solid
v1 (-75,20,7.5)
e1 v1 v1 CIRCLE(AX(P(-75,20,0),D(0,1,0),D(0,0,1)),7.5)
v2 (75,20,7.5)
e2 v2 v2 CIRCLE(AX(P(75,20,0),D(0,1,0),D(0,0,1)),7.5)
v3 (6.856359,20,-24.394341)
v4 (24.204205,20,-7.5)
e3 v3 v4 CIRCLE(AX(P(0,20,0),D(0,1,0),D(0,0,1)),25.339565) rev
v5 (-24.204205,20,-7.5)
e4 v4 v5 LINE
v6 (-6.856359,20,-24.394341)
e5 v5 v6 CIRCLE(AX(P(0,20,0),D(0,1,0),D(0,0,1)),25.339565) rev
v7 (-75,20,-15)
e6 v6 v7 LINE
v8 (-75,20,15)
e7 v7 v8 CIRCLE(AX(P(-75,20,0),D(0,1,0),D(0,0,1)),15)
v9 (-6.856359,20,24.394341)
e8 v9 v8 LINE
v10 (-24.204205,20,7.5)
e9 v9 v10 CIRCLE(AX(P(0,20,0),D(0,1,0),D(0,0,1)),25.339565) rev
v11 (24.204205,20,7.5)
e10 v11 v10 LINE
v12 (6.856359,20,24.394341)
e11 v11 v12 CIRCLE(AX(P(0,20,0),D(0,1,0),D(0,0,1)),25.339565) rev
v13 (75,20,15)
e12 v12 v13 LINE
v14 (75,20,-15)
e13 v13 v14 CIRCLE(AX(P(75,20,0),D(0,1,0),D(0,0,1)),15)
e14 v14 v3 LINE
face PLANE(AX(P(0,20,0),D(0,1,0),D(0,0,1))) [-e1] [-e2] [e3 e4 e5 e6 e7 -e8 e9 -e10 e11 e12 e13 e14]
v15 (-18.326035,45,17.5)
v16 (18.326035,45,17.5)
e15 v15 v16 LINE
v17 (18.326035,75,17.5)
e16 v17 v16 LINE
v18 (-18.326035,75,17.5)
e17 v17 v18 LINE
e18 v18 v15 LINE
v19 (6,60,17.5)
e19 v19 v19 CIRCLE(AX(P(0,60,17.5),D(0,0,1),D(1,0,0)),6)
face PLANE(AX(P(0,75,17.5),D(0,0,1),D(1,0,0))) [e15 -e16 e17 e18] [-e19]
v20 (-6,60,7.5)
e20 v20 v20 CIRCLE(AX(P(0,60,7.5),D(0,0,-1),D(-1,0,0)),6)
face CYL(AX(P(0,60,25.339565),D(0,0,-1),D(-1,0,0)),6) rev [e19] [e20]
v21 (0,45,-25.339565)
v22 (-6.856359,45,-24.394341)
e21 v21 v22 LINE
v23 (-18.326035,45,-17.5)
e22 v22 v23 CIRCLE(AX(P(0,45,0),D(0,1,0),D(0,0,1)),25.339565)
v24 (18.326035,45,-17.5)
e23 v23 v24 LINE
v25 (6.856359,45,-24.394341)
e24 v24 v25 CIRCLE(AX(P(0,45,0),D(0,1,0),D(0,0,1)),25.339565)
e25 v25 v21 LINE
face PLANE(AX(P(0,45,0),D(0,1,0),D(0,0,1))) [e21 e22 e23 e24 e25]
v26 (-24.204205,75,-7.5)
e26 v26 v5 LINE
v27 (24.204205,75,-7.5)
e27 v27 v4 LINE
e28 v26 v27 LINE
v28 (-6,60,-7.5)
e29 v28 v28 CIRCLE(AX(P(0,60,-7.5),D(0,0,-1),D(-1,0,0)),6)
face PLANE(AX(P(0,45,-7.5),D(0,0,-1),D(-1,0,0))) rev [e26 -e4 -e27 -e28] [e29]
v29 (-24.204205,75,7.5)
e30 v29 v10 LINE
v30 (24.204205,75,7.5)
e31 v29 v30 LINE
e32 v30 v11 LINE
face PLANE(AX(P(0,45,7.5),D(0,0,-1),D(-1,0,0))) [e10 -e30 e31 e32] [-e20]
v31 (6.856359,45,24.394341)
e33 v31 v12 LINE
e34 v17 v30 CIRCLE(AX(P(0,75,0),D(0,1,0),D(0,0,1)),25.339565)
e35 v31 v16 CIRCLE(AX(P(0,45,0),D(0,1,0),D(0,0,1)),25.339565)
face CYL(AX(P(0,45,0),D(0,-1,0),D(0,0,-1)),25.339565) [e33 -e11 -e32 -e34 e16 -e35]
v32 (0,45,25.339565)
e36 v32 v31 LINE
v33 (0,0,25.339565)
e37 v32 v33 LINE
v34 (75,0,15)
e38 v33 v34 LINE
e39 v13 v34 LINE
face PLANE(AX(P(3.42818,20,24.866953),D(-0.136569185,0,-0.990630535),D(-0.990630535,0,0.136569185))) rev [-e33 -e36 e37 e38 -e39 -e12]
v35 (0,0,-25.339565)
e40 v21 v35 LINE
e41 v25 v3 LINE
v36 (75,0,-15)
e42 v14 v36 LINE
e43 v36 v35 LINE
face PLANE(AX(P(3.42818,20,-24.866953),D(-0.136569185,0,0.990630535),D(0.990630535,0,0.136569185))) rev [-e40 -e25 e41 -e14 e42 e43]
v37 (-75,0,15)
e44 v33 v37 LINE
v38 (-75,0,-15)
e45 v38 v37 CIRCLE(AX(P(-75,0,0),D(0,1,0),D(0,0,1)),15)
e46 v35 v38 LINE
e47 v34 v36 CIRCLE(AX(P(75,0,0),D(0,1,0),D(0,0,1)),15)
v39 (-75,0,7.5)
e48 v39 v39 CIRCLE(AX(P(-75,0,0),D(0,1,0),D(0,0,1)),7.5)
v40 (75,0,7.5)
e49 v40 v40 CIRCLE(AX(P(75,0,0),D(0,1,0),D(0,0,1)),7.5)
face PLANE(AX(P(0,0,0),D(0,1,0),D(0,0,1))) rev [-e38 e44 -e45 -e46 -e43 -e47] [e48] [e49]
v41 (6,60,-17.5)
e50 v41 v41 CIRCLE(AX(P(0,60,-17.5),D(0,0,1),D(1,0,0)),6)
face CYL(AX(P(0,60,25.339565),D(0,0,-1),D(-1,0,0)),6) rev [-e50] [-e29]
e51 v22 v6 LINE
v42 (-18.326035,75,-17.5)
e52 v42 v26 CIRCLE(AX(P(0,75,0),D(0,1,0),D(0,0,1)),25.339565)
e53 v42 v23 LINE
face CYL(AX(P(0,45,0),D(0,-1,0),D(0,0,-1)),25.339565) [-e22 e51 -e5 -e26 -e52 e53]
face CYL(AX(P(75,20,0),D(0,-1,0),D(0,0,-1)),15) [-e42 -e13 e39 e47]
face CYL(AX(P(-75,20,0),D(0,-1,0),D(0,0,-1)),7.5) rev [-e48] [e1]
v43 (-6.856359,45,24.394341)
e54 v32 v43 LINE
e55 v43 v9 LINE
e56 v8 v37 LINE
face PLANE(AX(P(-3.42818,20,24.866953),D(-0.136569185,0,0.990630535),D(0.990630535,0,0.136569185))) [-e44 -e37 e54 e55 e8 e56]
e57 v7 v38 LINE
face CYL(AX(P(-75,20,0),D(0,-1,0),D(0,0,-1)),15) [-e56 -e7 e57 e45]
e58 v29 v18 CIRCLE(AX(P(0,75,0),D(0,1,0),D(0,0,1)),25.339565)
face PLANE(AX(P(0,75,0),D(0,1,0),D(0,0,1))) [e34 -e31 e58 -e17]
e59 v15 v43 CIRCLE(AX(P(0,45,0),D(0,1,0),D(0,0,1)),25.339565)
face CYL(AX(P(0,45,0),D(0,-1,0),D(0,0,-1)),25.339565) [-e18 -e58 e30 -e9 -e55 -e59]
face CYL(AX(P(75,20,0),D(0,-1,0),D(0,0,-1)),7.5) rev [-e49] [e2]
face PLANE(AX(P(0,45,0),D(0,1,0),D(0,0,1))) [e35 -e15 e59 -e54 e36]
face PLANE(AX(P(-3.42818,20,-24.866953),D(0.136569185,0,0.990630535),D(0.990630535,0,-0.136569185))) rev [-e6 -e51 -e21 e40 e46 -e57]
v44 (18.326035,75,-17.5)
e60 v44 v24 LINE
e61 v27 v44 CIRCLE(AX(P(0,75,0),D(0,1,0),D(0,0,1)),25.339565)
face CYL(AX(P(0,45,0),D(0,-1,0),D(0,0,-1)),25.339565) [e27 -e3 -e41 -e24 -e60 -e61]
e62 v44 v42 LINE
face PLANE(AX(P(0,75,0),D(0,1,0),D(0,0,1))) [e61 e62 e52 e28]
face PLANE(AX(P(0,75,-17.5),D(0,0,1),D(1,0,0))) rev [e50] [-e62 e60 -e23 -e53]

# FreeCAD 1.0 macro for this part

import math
import FreeCAD as App
import Part
import Sketcher
Q = App.Units.Quantity

doc = App.newDocument("Part")
body = doc.addObject("PartDesign::Body", "Body")

sketch1 = doc.addObject("Sketcher::SketchObject", "Sketch")
body.addObject(sketch1)
sketch1.AttachmentSupport = (doc.XZ_Plane, [""])
sketch1.MapMode = "FlatFace"
sketch1.addGeometry([
    Part.LineSegment(App.Vector(-75, 15, 0), App.Vector(-7, 24, 0)),
    Part.LineSegment(App.Vector(-7, 24, 0), App.Vector(0, 25, 0)),
    Part.LineSegment(App.Vector(0, 25, 0), App.Vector(7, 24, 0)),
    Part.LineSegment(App.Vector(7, 24, 0), App.Vector(75, 15, 0)),
    Part.ArcOfCircle(Part.Circle(App.Vector(75, 0, 0), App.Vector(0, 0, 1), 15), math.radians(-90), math.radians(90)),
    Part.LineSegment(App.Vector(75, -15, 0), App.Vector(7, -24, 0)),
    Part.LineSegment(App.Vector(7, -24, 0), App.Vector(0, -25, 0)),
    Part.LineSegment(App.Vector(0, -25, 0), App.Vector(-7, -24, 0)),
    Part.LineSegment(App.Vector(-7, -24, 0), App.Vector(-75, -15, 0)),
    Part.ArcOfCircle(Part.Circle(App.Vector(-75, 0, 0), App.Vector(0, 0, 1), 15), math.radians(90), math.radians(270)),
    Part.Circle(App.Vector(-75, 0, 0), App.Vector(0, 0, 1), 8),
    Part.Circle(App.Vector(75, 0, 0), App.Vector(0, 0, 1), 8),
], False)
sketch1.addConstraint([
    Sketcher.Constraint("Coincident", 0, 2, 1, 1),
    Sketcher.Constraint("Coincident", 1, 2, 2, 1),
    Sketcher.Constraint("Coincident", 2, 2, 3, 1),
    Sketcher.Constraint("Coincident", 3, 2, 4, 2),
    Sketcher.Constraint("Coincident", 4, 1, 5, 1),
    Sketcher.Constraint("Coincident", 5, 2, 6, 1),
    Sketcher.Constraint("Coincident", 6, 2, 7, 1),
    Sketcher.Constraint("Coincident", 7, 2, 8, 1),
    Sketcher.Constraint("Coincident", 8, 2, 9, 2),
    Sketcher.Constraint("Coincident", 9, 1, 0, 1),
    Sketcher.Constraint("Coincident", 10, 3, 9, 3),
    Sketcher.Constraint("Coincident", 11, 3, 4, 3),
    Sketcher.Constraint("Equal", 4, 9),
    Sketcher.Constraint("Equal", 10, 11),
    Sketcher.Constraint("Symmetric", 4, 3, 9, 3, -1, 1),
    Sketcher.Constraint("Symmetric", 0, 2, 5, 2, -1, 1),
    Sketcher.Constraint("Symmetric", 1, 2, 6, 2, -1, 1),
    Sketcher.Constraint("Symmetric", 2, 2, 7, 2, -1, 1),
    Sketcher.Constraint("Symmetric", 0, 2, 2, 2, -2),
    Sketcher.Constraint("Symmetric", 4, 1, 8, 2, -2),
    Sketcher.Constraint("PointOnObject", 1, 2, -2),
    Sketcher.Constraint("Parallel", 0, 1),
    Sketcher.Constraint("Parallel", 2, 3),
    Sketcher.Constraint("Parallel", 1, 5),
    Sketcher.Constraint("Vertical", 11, 3, 3, 2),
    Sketcher.Constraint("Diameter", 10, Q("15 mm")),
    Sketcher.Constraint("Radius", 4, Q("15 mm")),
    Sketcher.Constraint("DistanceX", -1, 1, 4, 3, Q("75 mm")),
    Sketcher.Constraint("Distance", 0, Q("68.788149 mm")),
    Sketcher.Constraint("DistanceX", 0, 2, -1, 1, Q("6.856359 mm")),
])
pad1 = doc.addObject("PartDesign::Pad", "Pad")
body.addObject(pad1)
pad1.Profile = sketch1
pad1.Length = 20
pad1.Reversed = True

sketch2 = doc.addObject("Sketcher::SketchObject", "Sketch001")
body.addObject(sketch2)
sketch2.AttachmentSupport = (doc.XZ_Plane, [""])
sketch2.MapMode = "FlatFace"
sketch2.addGeometry([
    Part.ArcOfCircle(Part.Circle(App.Vector(0, 0, 0), App.Vector(0, 0, 1), 25), math.radians(-44), math.radians(-17)),
    Part.ArcOfCircle(Part.Circle(App.Vector(0, 0, 0), App.Vector(0, 0, 1), 25), math.radians(-74), math.radians(-44)),
    Part.LineSegment(App.Vector(7, -24, 0), App.Vector(0, -25, 0)),
    Part.LineSegment(App.Vector(0, -25, 0), App.Vector(-7, -24, 0)),
    Part.ArcOfCircle(Part.Circle(App.Vector(0, 0, 0), App.Vector(0, 0, 1), 25), math.radians(-136), math.radians(-106)),
    Part.ArcOfCircle(Part.Circle(App.Vector(0, 0, 0), App.Vector(0, 0, 1), 25), math.radians(-163), math.radians(-136)),
    Part.LineSegment(App.Vector(-24, -8, 0), App.Vector(24, -8, 0)),
    Part.ArcOfCircle(Part.Circle(App.Vector(0, 0, 0), App.Vector(0, 0, 1), 25), math.radians(17), math.radians(44)),
    Part.LineSegment(App.Vector(24, 8, 0), App.Vector(-24, 8, 0)),
    Part.ArcOfCircle(Part.Circle(App.Vector(0, 0, 0), App.Vector(0, 0, 1), 25), math.radians(136), math.radians(163)),
    Part.ArcOfCircle(Part.Circle(App.Vector(0, 0, 0), App.Vector(0, 0, 1), 25), math.radians(106), math.radians(136)),
    Part.LineSegment(App.Vector(-7, 24, 0), App.Vector(0, 25, 0)),
    Part.LineSegment(App.Vector(0, 25, 0), App.Vector(7, 24, 0)),
    Part.ArcOfCircle(Part.Circle(App.Vector(0, 0, 0), App.Vector(0, 0, 1), 25), math.radians(44), math.radians(74)),
], False)
sketch2.addConstraint([
    Sketcher.Constraint("Tangent", 0, 1, 1, 2),
    Sketcher.Constraint("Coincident", 1, 1, 2, 1),
    Sketcher.Constraint("Coincident", 2, 2, 3, 1),
    Sketcher.Constraint("Coincident", 3, 2, 4, 2),
    Sketcher.Constraint("Tangent", 4, 1, 5, 2),
    Sketcher.Constraint("Coincident", 5, 1, 6, 1),
    Sketcher.Constraint("Coincident", 6, 2, 0, 2),
    Sketcher.Constraint("Coincident", 7, 1, 8, 1),
    Sketcher.Constraint("Coincident", 8, 2, 9, 2),
    Sketcher.Constraint("Tangent", 9, 1, 10, 2),
    Sketcher.Constraint("Coincident", 10, 1, 11, 1),
    Sketcher.Constraint("Coincident", 11, 2, 12, 1),
    Sketcher.Constraint("Coincident", 12, 2, 13, 2),
    Sketcher.Constraint("Tangent", 13, 1, 7, 2),
    Sketcher.Constraint("Horizontal", 6),
    Sketcher.Constraint("Horizontal", 8),
    Sketcher.Constraint("Coincident", 0, 3, -1, 1),
    Sketcher.Constraint("Coincident", 4, 3, -1, 1),
    Sketcher.Constraint("Coincident", 7, 3, -1, 1),
    Sketcher.Constraint("Coincident", 9, 3, -1, 1),
    Sketcher.Constraint("Equal", 0, 1),
    Sketcher.Constraint("Equal", 1, 4),
    Sketcher.Constraint("Equal", 4, 5),
    Sketcher.Constraint("Equal", 5, 7),
    Sketcher.Constraint("Equal", 7, 9),
    Sketcher.Constraint("Equal", 9, 10),
    Sketcher.Constraint("Equal", 10, 13),
    Sketcher.Constraint("Symmetric", 2, 2, 11, 2, -1, 1),
    Sketcher.Constraint("PointOnObject", 2, 2, -2),
    Sketcher.Constraint("Parallel", 2, 11),
    Sketcher.Constraint("Parallel", 3, 12),
    Sketcher.Constraint("Horizontal", 1, 1, 3, 2),
    Sketcher.Constraint("Horizontal", 0, 1, 4, 1),
    Sketcher.Constraint("Horizontal", 9, 1, 13, 1),
    Sketcher.Constraint("Vertical", 6, 2, 7, 1),
    Sketcher.Constraint("Vertical", 4, 1, 9, 1),
    Sketcher.Constraint("DistanceY", 4, 1, 5, 1, Q("10 mm")),
    Sketcher.Constraint("DistanceY", 6, 2, 7, 1, Q("15 mm")),
    Sketcher.Constraint("Radius", 0, Q("25.339565 mm")),
    Sketcher.Constraint("DistanceX", -1, 1, 1, 1, Q("6.856359 mm")),
    Sketcher.Constraint("Distance", 2, Q("6.921208 mm")),
])
pad2 = doc.addObject("PartDesign::Pad", "Pad001")
body.addObject(pad2)
pad2.Profile = sketch2
pad2.Length = 45
pad2.Reversed = True

sketch3 = doc.addObject("Sketcher::SketchObject", "Sketch002")
body.addObject(sketch3)
sketch3.AttachmentSupport = (doc.XZ_Plane, [""])
sketch3.MapMode = "FlatFace"
sketch3.addGeometry([
    Part.ArcOfCircle(Part.Circle(App.Vector(0, 0, 0), App.Vector(0, 0, 1), 25), math.radians(-44), math.radians(-17)),
    Part.LineSegment(App.Vector(18, -18, 0), App.Vector(-18, -18, 0)),
    Part.ArcOfCircle(Part.Circle(App.Vector(0, 0, 0), App.Vector(0, 0, 1), 25), math.radians(-163), math.radians(-136)),
    Part.LineSegment(App.Vector(-24, -8, 0), App.Vector(24, -8, 0)),
    Part.LineSegment(App.Vector(-18, 18, 0), App.Vector(18, 18, 0)),
    Part.ArcOfCircle(Part.Circle(App.Vector(0, 0, 0), App.Vector(0, 0, 1), 25), math.radians(17), math.radians(44)),
    Part.LineSegment(App.Vector(24, 8, 0), App.Vector(-24, 8, 0)),
    Part.ArcOfCircle(Part.Circle(App.Vector(0, 0, 0), App.Vector(0, 0, 1), 25), math.radians(136), math.radians(163)),
], False)
sketch3.addConstraint([
    Sketcher.Constraint("Coincident", 0, 1, 1, 1),
    Sketcher.Constraint("Coincident", 1, 2, 2, 2),
    Sketcher.Constraint("Coincident", 2, 1, 3, 1),
    Sketcher.Constraint("Coincident", 3, 2, 0, 2),
    Sketcher.Constraint("Coincident", 4, 2, 5, 2),
    Sketcher.Constraint("Coincident", 5, 1, 6, 1),
    Sketcher.Constraint("Coincident", 6, 2, 7, 2),
    Sketcher.Constraint("Coincident", 7, 1, 4, 1),
    Sketcher.Constraint("Horizontal", 1),
    Sketcher.Constraint("Horizontal", 3),
    Sketcher.Constraint("Horizontal", 4),
    Sketcher.Constraint("Horizontal", 6),
    Sketcher.Constraint("Coincident", 0, 3, -1, 1),
    Sketcher.Constraint("Coincident", 2, 3, -1, 1),
    Sketcher.Constraint("Coincident", 5, 3, -1, 1),
    Sketcher.Constraint("Coincident", 7, 3, -1, 1),
    Sketcher.Constraint("Equal", 0, 2),
    Sketcher.Constraint("Equal", 2, 5),
    Sketcher.Constraint("Equal", 5, 7),
    Sketcher.Constraint("Vertical", 0, 1, 4, 2),
    Sketcher.Constraint("Vertical", 3, 2, 5, 1),
    Sketcher.Constraint("DistanceY", 1, 2, 2, 1, Q("10 mm")),
    Sketcher.Constraint("DistanceY", 3, 2, 4, 2, Q("25 mm")),
    Sketcher.Constraint("Radius", 0, Q("25.339565 mm")),
])
pad3 = doc.addObject("PartDesign::Pad", "Pad002")
body.addObject(pad3)
pad3.Profile = sketch3
pad3.Length = 75
pad3.Reversed = True

sketch4 = doc.addObject("Sketcher::SketchObject", "Sketch003")
body.addObject(sketch4)
sketch4.AttachmentSupport = (doc.XY_Plane, [""])
sketch4.MapMode = "FlatFace"
sketch4.AttachmentOffset = App.Placement(App.Vector(0, 0, -17.5), App.Rotation())
sketch4.addGeometry(Part.Circle(App.Vector(0, 60, 0), App.Vector(0, 0, 1), 6), False)
sketch4.addConstraint([
    Sketcher.Constraint("PointOnObject", 0, 3, -2),
    Sketcher.Constraint("Diameter", 0, Q("12 mm")),
    Sketcher.Constraint("DistanceY", -1, 1, 0, 3, Q("60 mm")),
])
pocket1 = doc.addObject("PartDesign::Pocket", "Pocket")
body.addObject(pocket1)
pocket1.Profile = sketch4
pocket1.Type = "ThroughAll"
pocket1.Midplane = True

doc.recompute()
